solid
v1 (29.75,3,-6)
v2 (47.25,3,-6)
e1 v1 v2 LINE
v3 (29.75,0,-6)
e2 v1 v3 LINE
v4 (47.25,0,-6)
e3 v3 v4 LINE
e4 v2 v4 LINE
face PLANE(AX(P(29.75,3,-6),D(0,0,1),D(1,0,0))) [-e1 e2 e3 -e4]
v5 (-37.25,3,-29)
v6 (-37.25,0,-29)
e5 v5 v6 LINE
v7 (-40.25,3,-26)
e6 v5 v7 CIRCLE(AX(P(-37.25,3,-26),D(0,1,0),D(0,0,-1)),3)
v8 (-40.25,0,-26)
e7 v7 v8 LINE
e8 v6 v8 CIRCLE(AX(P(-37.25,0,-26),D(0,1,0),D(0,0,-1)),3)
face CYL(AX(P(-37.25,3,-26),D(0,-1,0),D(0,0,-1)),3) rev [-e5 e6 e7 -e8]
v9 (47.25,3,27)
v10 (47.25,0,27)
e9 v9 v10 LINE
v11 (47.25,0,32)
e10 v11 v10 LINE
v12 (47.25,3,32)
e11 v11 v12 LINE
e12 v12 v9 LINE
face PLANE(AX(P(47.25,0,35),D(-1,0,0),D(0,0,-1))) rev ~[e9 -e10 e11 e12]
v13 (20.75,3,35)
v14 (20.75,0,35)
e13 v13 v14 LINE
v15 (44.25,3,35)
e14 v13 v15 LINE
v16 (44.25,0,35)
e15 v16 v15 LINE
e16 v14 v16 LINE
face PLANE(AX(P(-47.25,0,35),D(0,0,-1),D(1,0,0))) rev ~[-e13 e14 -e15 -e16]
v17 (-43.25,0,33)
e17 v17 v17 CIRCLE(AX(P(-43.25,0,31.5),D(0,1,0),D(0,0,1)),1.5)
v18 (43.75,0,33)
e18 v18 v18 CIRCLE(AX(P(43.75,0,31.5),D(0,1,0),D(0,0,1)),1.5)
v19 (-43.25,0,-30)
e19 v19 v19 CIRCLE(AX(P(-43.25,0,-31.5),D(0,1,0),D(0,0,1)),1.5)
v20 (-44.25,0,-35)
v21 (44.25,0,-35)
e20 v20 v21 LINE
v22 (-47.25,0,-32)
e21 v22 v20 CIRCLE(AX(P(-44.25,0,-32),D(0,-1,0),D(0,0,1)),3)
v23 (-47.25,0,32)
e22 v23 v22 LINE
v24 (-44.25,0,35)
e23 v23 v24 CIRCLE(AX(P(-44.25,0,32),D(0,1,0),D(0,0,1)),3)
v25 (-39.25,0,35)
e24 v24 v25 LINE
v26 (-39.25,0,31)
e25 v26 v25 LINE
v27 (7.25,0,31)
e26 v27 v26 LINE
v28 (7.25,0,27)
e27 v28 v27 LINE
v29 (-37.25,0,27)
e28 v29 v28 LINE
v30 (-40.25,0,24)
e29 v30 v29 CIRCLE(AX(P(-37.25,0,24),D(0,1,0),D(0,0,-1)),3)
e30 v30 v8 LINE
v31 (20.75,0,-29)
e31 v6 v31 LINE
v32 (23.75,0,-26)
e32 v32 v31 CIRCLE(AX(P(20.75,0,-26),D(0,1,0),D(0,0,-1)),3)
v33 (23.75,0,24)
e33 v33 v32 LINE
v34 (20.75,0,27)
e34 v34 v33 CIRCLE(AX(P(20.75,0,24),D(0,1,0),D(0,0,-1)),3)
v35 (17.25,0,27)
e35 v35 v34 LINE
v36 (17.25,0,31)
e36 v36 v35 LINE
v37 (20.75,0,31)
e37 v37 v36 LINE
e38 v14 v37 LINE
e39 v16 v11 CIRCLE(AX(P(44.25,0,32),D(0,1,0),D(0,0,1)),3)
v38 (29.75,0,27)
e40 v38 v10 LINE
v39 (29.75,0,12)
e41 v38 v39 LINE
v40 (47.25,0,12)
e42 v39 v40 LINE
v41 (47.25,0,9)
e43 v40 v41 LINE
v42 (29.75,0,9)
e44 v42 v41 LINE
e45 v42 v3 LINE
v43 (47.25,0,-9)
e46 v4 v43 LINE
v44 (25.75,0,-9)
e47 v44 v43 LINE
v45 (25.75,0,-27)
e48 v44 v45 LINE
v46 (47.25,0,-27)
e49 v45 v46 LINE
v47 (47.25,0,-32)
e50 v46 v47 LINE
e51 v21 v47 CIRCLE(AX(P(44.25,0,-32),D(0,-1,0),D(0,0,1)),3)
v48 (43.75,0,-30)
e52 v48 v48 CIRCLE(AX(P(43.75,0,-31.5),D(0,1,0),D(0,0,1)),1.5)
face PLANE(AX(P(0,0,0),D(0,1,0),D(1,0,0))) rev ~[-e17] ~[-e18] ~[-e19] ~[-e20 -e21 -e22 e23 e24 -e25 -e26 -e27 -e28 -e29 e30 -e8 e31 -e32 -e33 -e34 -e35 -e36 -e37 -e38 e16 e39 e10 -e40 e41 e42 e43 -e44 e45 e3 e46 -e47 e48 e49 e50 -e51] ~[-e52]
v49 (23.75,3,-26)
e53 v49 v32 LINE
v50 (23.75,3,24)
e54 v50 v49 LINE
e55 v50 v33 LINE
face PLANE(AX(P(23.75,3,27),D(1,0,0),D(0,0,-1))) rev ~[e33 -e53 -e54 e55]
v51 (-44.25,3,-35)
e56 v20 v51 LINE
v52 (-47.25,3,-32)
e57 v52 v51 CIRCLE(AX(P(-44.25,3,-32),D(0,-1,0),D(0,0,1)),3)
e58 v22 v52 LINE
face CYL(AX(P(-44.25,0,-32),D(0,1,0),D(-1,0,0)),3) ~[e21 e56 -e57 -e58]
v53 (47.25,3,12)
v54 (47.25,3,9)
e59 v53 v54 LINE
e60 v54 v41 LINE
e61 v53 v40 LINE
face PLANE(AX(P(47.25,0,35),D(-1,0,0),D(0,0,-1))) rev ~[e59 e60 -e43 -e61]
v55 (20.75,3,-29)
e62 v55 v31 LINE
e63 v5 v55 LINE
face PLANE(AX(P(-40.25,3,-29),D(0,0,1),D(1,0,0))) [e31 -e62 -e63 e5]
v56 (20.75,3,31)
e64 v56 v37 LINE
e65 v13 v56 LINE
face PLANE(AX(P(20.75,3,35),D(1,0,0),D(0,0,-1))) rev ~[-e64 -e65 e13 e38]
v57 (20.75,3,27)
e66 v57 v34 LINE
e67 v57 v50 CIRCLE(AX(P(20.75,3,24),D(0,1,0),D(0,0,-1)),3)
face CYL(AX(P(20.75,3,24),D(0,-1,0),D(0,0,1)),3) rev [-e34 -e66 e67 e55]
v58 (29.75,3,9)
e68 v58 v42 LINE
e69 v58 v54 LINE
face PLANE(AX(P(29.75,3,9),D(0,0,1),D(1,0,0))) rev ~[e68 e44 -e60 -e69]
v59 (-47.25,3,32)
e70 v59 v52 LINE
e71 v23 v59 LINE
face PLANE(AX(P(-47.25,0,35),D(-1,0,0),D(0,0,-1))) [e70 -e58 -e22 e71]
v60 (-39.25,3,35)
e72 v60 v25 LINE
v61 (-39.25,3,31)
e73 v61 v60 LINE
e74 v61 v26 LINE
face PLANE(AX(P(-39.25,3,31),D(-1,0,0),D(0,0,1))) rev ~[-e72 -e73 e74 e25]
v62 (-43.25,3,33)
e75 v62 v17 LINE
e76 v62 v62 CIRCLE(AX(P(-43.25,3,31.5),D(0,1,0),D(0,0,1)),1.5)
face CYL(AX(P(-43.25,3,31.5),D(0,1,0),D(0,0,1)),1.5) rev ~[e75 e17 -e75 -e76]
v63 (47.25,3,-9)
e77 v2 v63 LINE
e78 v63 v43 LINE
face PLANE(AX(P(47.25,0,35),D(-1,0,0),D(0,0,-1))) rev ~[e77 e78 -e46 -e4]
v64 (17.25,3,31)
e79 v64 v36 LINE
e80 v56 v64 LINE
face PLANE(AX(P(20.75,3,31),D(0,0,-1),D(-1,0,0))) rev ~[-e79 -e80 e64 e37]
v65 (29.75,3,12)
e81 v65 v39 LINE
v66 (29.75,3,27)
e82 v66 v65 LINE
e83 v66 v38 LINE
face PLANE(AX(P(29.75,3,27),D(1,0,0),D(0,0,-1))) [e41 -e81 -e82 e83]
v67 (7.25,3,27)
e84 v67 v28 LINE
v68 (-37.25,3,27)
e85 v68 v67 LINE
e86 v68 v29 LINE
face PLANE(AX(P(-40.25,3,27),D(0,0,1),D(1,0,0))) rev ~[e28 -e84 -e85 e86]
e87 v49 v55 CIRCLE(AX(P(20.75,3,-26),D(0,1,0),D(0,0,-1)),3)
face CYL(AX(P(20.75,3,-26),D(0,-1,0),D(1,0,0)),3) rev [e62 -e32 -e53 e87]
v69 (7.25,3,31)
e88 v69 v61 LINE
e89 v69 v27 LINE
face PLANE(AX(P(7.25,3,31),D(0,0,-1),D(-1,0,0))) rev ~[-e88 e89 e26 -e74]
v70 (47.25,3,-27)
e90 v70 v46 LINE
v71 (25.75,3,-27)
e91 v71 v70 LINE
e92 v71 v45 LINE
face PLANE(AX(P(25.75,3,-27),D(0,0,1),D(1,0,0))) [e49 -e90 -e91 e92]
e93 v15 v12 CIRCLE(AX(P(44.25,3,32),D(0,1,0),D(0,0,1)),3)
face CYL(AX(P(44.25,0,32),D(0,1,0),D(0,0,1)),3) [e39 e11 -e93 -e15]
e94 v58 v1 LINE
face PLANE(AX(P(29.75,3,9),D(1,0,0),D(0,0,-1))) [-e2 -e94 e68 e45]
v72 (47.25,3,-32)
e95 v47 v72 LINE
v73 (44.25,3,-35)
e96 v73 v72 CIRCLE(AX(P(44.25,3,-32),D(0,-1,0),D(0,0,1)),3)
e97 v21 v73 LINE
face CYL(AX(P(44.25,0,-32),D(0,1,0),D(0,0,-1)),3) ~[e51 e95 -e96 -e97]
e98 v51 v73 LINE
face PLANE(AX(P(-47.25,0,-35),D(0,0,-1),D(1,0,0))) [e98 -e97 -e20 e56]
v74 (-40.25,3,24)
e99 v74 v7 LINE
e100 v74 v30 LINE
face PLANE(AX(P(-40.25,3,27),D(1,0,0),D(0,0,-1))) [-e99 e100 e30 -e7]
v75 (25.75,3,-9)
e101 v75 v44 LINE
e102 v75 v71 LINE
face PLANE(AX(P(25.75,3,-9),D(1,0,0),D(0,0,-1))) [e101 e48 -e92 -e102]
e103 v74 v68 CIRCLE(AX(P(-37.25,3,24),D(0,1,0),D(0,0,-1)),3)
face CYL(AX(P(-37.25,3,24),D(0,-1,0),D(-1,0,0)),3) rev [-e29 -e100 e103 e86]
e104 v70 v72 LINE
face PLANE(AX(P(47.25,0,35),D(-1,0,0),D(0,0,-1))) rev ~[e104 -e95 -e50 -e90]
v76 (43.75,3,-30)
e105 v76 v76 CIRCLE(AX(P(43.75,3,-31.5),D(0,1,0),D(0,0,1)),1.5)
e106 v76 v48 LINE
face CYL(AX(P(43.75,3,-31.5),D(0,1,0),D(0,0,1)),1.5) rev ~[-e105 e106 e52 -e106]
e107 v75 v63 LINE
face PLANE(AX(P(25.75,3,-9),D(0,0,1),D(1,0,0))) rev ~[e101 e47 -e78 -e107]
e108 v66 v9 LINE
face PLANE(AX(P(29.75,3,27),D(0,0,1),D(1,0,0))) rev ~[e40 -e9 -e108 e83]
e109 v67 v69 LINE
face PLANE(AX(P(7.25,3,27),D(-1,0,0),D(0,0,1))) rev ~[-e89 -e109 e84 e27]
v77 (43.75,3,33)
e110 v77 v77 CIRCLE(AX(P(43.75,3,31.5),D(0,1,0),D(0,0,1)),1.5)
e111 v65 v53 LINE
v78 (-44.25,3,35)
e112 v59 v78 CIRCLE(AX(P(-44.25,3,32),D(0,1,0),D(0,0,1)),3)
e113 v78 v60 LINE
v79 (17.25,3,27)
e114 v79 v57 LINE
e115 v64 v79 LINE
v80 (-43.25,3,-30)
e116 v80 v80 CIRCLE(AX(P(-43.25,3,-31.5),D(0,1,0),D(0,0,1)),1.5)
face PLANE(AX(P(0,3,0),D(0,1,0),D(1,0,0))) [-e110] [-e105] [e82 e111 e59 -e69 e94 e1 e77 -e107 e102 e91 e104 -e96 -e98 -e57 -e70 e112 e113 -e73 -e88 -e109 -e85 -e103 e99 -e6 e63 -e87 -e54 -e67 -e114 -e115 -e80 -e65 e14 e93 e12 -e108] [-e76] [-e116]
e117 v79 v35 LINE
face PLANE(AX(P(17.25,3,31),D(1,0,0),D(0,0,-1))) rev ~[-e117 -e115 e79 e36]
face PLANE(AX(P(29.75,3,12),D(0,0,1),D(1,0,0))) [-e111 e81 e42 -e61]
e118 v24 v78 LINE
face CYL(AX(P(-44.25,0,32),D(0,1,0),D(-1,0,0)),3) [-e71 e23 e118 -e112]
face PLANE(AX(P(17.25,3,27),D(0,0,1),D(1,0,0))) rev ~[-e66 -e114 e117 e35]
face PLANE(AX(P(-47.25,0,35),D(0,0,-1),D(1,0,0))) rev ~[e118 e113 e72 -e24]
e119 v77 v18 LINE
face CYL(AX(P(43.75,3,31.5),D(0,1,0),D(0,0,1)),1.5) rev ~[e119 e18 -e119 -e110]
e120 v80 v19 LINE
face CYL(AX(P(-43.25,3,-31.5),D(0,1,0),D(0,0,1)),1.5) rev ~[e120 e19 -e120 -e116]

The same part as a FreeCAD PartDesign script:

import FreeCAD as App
import Part
import Sketcher

V = App.Vector


def edges_at(feature, points):
    """Names of the edges that pass closest to the given points."""
    edges = feature.Shape.Edges
    near = lambda p: min(range(len(edges)), key=lambda i: edges[i].distToShape(Part.Vertex(*p))[0])
    return sorted({f"Edge{near(p) + 1}" for p in points})


def add_polygon(sketch, points):
    """Adds a closed chain of lines whose ends are joined by coincident constraints."""
    first, n = sketch.GeometryCount, len(points)
    for a, b in zip(points, points[1:] + points[:1]):
        sketch.addGeometry(Part.LineSegment(App.Vector(*a, 0), App.Vector(*b, 0)), False)
    for i in range(n):
        sketch.addConstraint(Sketcher.Constraint("Coincident", first + i, 2, first + (i + 1) % n, 1))

doc = App.newDocument("Part")
body = doc.addObject("PartDesign::Body", "Body")

# Sketch on XZ plane
sketch1 = doc.addObject("Sketcher::SketchObject", "Sketch")
body.addObject(sketch1)
sketch1.AttachmentSupport = (doc.XZ_Plane, [""])
sketch1.MapMode = "FlatFace"
add_polygon(sketch1, [(-47.25, -35), (-47.25, 35), (47.25, 35), (47.25, -35)])  # lines 0-3
sketch1.addConstraint(Sketcher.Constraint("Vertical", 0))
sketch1.addConstraint(Sketcher.Constraint("Horizontal", 1))
sketch1.addConstraint(Sketcher.Constraint("Vertical", 2))
sketch1.addConstraint(Sketcher.Constraint("Horizontal", 3))
sketch1.addConstraint(Sketcher.Constraint("Symmetric", 0, 2, 2, 2, -1, 1))
sketch1.addConstraint(Sketcher.Constraint("DistanceY", 0, 1, 0, 2, 70.0))
sketch1.addConstraint(Sketcher.Constraint("DistanceX", 1, 1, 1, 2, 94.5))
pad1 = doc.addObject("PartDesign::Pad", "Pad")
body.addObject(pad1)
pad1.Profile = sketch1
pad1.Length = 3
pad1.Reversed = True

# Sketch on XZ plane
sketch2 = doc.addObject("Sketcher::SketchObject", "Sketch001")
body.addObject(sketch2)
sketch2.AttachmentSupport = (doc.XZ_Plane, [""])
sketch2.MapMode = "FlatFace"
sketch2.AttachmentOffset = App.Placement(V(0, 0, -3), App.Rotation())
sketch2.addGeometry(Part.Circle(V(43.75, -31.5, 0), V(0, 0, 1), 1.5), False)
sketch2.addGeometry(Part.Circle(V(-43.25, -31.5, 0), V(0, 0, 1), 1.5), False)
sketch2.addGeometry(Part.Circle(V(-43.25, 31.5, 0), V(0, 0, 1), 1.5), False)
sketch2.addGeometry(Part.Circle(V(43.75, 31.5, 0), V(0, 0, 1), 1.5), False)
sketch2.addConstraint(Sketcher.Constraint("Equal", 0, 1))
sketch2.addConstraint(Sketcher.Constraint("Equal", 1, 2))
sketch2.addConstraint(Sketcher.Constraint("Equal", 2, 3))
sketch2.addConstraint(Sketcher.Constraint("Symmetric", 1, 3, 2, 3, -1))
sketch2.addConstraint(Sketcher.Constraint("Symmetric", 0, 3, 3, 3, -1))
sketch2.addConstraint(Sketcher.Constraint("Horizontal", 0, 3, 1, 3))
sketch2.addConstraint(Sketcher.Constraint("Diameter", 0, 3.0))
sketch2.addConstraint(Sketcher.Constraint("DistanceX", 1, 3, 0, 3, 87.0))
sketch2.addConstraint(Sketcher.Constraint("DistanceY", 1, 3, 2, 3, 63.0))
sketch2.addConstraint(Sketcher.Constraint("DistanceX", -1, 1, 0, 3, 43.75))
pocket1 = doc.addObject("PartDesign::Pocket", "Pocket")
body.addObject(pocket1)
pocket1.Profile = sketch2
pocket1.Type = "ThroughAll"
pocket1.Reversed = True
doc.recompute()

fillet = doc.addObject("PartDesign::Fillet", "Fillet")
body.addObject(fillet)
fillet.Base = (pocket1, edges_at(pocket1, [
    (47.25, 1.5, 35),
    (-47.25, 1.5, 35),
    (-47.25, 1.5, -35),
    (47.25, 1.5, -35),
]))
fillet.Radius = 3

# Sketch on XZ plane
sketch3 = doc.addObject("Sketcher::SketchObject", "Sketch002")
body.addObject(sketch3)
sketch3.AttachmentSupport = (doc.XZ_Plane, [""])
sketch3.MapMode = "FlatFace"
sketch3.AttachmentOffset = App.Placement(V(0, 0, -3), App.Rotation())
add_polygon(sketch3, [(-40.25, -29), (-40.25, 27), (7.25, 27), (7.25, 31), (-39.25, 31), (-39.25, 35), (20.75, 35), (20.75, 31), (17.25, 31), (17.25, 27), (23.75, 27), (23.75, -29)])  # lines 0-11
add_polygon(sketch3, [(25.75, -27), (25.75, -9), (47.25, -9), (47.25, -27)])  # lines 12-15
add_polygon(sketch3, [(29.75, -6), (29.75, 9), (47.25, 9), (47.25, -6)])  # lines 16-19
add_polygon(sketch3, [(29.75, 12), (29.75, 27), (47.25, 27), (47.25, 12)])  # lines 20-23
sketch3.addConstraint(Sketcher.Constraint("Vertical", 0))
sketch3.addConstraint(Sketcher.Constraint("Horizontal", 1))
sketch3.addConstraint(Sketcher.Constraint("Vertical", 2))
sketch3.addConstraint(Sketcher.Constraint("Horizontal", 3))
sketch3.addConstraint(Sketcher.Constraint("Vertical", 4))
sketch3.addConstraint(Sketcher.Constraint("Horizontal", 5))
sketch3.addConstraint(Sketcher.Constraint("Vertical", 6))
sketch3.addConstraint(Sketcher.Constraint("Horizontal", 7))
sketch3.addConstraint(Sketcher.Constraint("Vertical", 8))
sketch3.addConstraint(Sketcher.Constraint("Horizontal", 9))
sketch3.addConstraint(Sketcher.Constraint("Vertical", 10))
sketch3.addConstraint(Sketcher.Constraint("Horizontal", 11))
sketch3.addConstraint(Sketcher.Constraint("Vertical", 12))
sketch3.addConstraint(Sketcher.Constraint("Horizontal", 13))
sketch3.addConstraint(Sketcher.Constraint("Vertical", 14))
sketch3.addConstraint(Sketcher.Constraint("Horizontal", 15))
sketch3.addConstraint(Sketcher.Constraint("Vertical", 16))
sketch3.addConstraint(Sketcher.Constraint("Horizontal", 17))
sketch3.addConstraint(Sketcher.Constraint("Vertical", 18))
sketch3.addConstraint(Sketcher.Constraint("Horizontal", 19))
sketch3.addConstraint(Sketcher.Constraint("Vertical", 20))
sketch3.addConstraint(Sketcher.Constraint("Horizontal", 21))
sketch3.addConstraint(Sketcher.Constraint("Vertical", 22))
sketch3.addConstraint(Sketcher.Constraint("Horizontal", 23))
sketch3.addConstraint(Sketcher.Constraint("Symmetric", 13, 2, 17, 2, -1))
sketch3.addConstraint(Sketcher.Constraint("Symmetric", 14, 2, 21, 2, -1))
sketch3.addConstraint(Sketcher.Constraint("Horizontal", 3, 2, 6, 2))
sketch3.addConstraint(Sketcher.Constraint("Horizontal", 1, 2, 8, 2))
sketch3.addConstraint(Sketcher.Constraint("Horizontal", 9, 2, 20, 2))
sketch3.addConstraint(Sketcher.Constraint("Vertical", 19, 2, 20, 2))
sketch3.addConstraint(Sketcher.Constraint("Equal", 2, 4))
sketch3.addConstraint(Sketcher.Constraint("Equal", 18, 20))
sketch3.addConstraint(Sketcher.Constraint("DistanceX", 5, 1, 5, 2, 60.0))
sketch3.addConstraint(Sketcher.Constraint("DistanceX", 11, 2, 11, 1, 64.0))
sketch3.addConstraint(Sketcher.Constraint("DistanceY", 0, 1, 0, 2, 56.0))
sketch3.addConstraint(Sketcher.Constraint("DistanceY", 2, 1, 2, 2, 4.0))
sketch3.addConstraint(Sketcher.Constraint("DistanceY", 12, 1, 12, 2, 18.0))
sketch3.addConstraint(Sketcher.Constraint("DistanceY", 16, 1, 16, 2, 15.0))
sketch3.addConstraint(Sketcher.Constraint("DistanceX", 1, 1, 1, 2, 47.5))
sketch3.addConstraint(Sketcher.Constraint("DistanceX", 3, 2, 3, 1, 46.5))
sketch3.addConstraint(Sketcher.Constraint("DistanceX", 7, 2, 7, 1, 3.5))
sketch3.addConstraint(Sketcher.Constraint("DistanceX", 13, 1, 13, 2, 21.5))
sketch3.addConstraint(Sketcher.Constraint("DistanceX", 17, 1, 17, 2, 17.5))
sketch3.addConstraint(Sketcher.Constraint("DistanceY", -1, 1, 0, 2, 27.0))
sketch3.addConstraint(Sketcher.Constraint("DistanceX", 10, 2, 12, 2, 2.0))
sketch3.addConstraint(Sketcher.Constraint("DistanceX", 0, 2, -1, 1, 40.25))
pocket2 = doc.addObject("PartDesign::Pocket", "Pocket001")
body.addObject(pocket2)
pocket2.Profile = sketch3
pocket2.Type = "ThroughAll"
pocket2.Reversed = True
doc.recompute()

fillet2 = doc.addObject("PartDesign::Fillet", "Fillet001")
body.addObject(fillet2)
fillet2.Base = (pocket2, edges_at(pocket2, [
    (-40.25, 1.5, 27),
    (-40.25, 1.5, -29),
    (23.75, 1.5, -29),
    (23.75, 1.5, 27),
]))
fillet2.Radius = 3

doc.recompute()
